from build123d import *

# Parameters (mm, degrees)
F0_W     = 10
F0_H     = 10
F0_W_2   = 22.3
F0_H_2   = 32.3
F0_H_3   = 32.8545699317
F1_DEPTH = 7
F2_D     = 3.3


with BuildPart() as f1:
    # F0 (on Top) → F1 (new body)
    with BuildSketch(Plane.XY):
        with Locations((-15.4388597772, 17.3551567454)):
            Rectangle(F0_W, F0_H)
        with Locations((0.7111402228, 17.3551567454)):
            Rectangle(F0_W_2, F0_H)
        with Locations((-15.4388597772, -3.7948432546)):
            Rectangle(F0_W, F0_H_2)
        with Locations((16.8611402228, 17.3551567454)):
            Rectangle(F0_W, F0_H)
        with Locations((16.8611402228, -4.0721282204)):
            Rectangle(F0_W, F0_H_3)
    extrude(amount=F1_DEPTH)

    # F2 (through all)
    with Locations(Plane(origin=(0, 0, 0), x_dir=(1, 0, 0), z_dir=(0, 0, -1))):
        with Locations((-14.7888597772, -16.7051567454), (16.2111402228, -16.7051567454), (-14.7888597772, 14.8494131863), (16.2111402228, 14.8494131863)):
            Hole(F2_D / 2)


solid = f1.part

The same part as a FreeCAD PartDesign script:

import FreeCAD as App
import Part
import Sketcher

V = App.Vector


def add_polygon(sketch, points):
    """Adds a closed chain of lines whose ends are joined by coincident constraints."""
    first, n = sketch.GeometryCount, len(points)
    for a, b in zip(points, points[1:] + points[:1]):
        sketch.addGeometry(Part.LineSegment(App.Vector(*a, 0), App.Vector(*b, 0)), False)
    for i in range(n):
        sketch.addConstraint(Sketcher.Constraint("Coincident", first + i, 2, first + (i + 1) % n, 1))

doc = App.newDocument("Part")
body = doc.addObject("PartDesign::Body", "Body")

# Sketch on XY plane
sketch1 = body.newObject("Sketcher::SketchObject", "Sketch")
sketch1.AttachmentSupport = (doc.getObject("XY_Plane"), [""])
sketch1.MapMode = "FlatFace"
add_polygon(sketch1, [(-20.43886, 22.355157), (-20.43886, -19.944843), (-10.43886, -19.944843), (-10.43886, 12.355157), (11.86114, 12.355157), (11.86114, -20.499413), (21.86114, -20.499413), (21.86114, 22.355157)])  # lines 0-7
sketch1.addConstraint([
    Sketcher.Constraint("Vertical", 0),
    Sketcher.Constraint("Horizontal", 1),
    Sketcher.Constraint("Vertical", 2),
    Sketcher.Constraint("Horizontal", 3),
    Sketcher.Constraint("Vertical", 4),
    Sketcher.Constraint("Horizontal", 5),
    Sketcher.Constraint("Vertical", 6),
    Sketcher.Constraint("Horizontal", 7),
    Sketcher.Constraint("Equal", 1, 5),
    Sketcher.Constraint("Equal", 7, 0),
    Sketcher.Constraint("DistanceX", 1, 1, 1, 2, 10.0),
    Sketcher.Constraint("DistanceX", 3, 1, 3, 2, 22.3),
    Sketcher.Constraint("DistanceY", 2, 1, 2, 2, 32.3),
    Sketcher.Constraint("DistanceY", 4, 2, 4, 1, 32.85457),
    Sketcher.Constraint("DistanceX", 0, 2, -1, 1, 20.43886),
    Sketcher.Constraint("DistanceY", 0, 2, -1, 1, 19.944843),
])
pad1 = body.newObject("PartDesign::Pad", "Pad")
pad1.Profile = sketch1
pad1.Length = 7

# Sketch on XY plane
sketch2 = body.newObject("Sketcher::SketchObject", "Sketch001")
sketch2.AttachmentSupport = (doc.getObject("XY_Plane"), [""])
sketch2.MapMode = "FlatFace"
sketch2.addGeometry([
    Part.Circle(V(-14.78886, 16.705157, 0), V(0, 0, 1), 1.65),
    Part.Circle(V(16.21114, 16.705157, 0), V(0, 0, 1), 1.65),
    Part.Circle(V(-14.78886, -14.849413, 0), V(0, 0, 1), 1.65),
    Part.Circle(V(16.21114, -14.849413, 0), V(0, 0, 1), 1.65),
], False)
sketch2.addConstraint([
    Sketcher.Constraint("Equal", 0, 1),
    Sketcher.Constraint("Equal", 1, 2),
    Sketcher.Constraint("Equal", 2, 3),
    Sketcher.Constraint("Horizontal", 0, 3, 1, 3),
    Sketcher.Constraint("Horizontal", 2, 3, 3, 3),
    Sketcher.Constraint("Vertical", 0, 3, 2, 3),
    Sketcher.Constraint("Vertical", 1, 3, 3, 3),
    Sketcher.Constraint("Diameter", 0, 3.3),
    Sketcher.Constraint("DistanceX", 0, 3, 1, 3, 31.0),
    Sketcher.Constraint("DistanceX", 0, 3, -1, 1, 14.78886),
    Sketcher.Constraint("DistanceY", 2, 3, 0, 3, 31.55457),
    Sketcher.Constraint("DistanceY", -1, 1, 0, 3, 16.705157),
])
doc.recompute()
hole = body.newObject("PartDesign::Hole", "Hole")
hole.Profile = sketch2
hole.ThreadType = "None"
hole.Diameter = 3.3
hole.DepthType = "ThroughAll"
hole.Reversed = True

doc.recompute()
